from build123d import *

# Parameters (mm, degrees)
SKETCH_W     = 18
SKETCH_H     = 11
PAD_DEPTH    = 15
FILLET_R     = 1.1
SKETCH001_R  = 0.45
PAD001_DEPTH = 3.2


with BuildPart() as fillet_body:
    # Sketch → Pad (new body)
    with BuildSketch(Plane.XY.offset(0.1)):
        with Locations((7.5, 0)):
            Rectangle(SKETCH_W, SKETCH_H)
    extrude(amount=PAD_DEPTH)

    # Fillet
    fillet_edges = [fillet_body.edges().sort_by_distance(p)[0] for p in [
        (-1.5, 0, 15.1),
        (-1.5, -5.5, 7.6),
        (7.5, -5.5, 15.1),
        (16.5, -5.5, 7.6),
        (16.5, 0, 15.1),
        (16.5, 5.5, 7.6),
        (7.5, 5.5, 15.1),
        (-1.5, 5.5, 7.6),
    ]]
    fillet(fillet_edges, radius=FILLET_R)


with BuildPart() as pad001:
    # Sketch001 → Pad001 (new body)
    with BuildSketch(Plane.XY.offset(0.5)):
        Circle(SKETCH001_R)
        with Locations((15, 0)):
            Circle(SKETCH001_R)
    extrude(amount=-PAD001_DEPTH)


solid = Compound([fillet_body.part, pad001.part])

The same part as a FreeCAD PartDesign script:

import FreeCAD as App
import Part
import Sketcher

V = App.Vector
Q = App.Units.Quantity


def edges_at(feature, points):
    """Names of the edges that pass closest to the given points."""
    edges = feature.Shape.Edges
    near = lambda p: min(range(len(edges)), key=lambda i: edges[i].distToShape(Part.Vertex(*p))[0])
    return sorted({f"Edge{near(p) + 1}" for p in points})

doc = App.newDocument("Part")
params = doc.addObject("Spreadsheet::Sheet", "Params")
for row, (alias, value) in enumerate([
    ("sketch1_width", "18 mm"),
    ("sketch1_height", "11 mm"),
    ("pad1_length", "15 mm"),
    ("fillet_radius", "1.1 mm"),
    ("sketch2_diameter", "0.9 mm"),
    ("pad2_length", "3.2 mm"),
], start=1):
    params.set(f"A{row}", alias)
    params.set(f"B{row}", "=" + value)
    params.setAlias(f"B{row}", alias)

body = doc.addObject("PartDesign::Body", "Body")

sketch1 = doc.addObject("Sketcher::SketchObject", "Sketch")
body.addObject(sketch1)
sketch1.AttachmentSupport = (doc.XY_Plane, [""])
sketch1.MapMode = "FlatFace"
sketch1.AttachmentOffset = App.Placement(V(0, 0, 0.1), App.Rotation())
sketch1.addGeometry([
    Part.LineSegment(V(-2, 6, 0), V(-2, -6, 0)),
    Part.LineSegment(V(-2, -6, 0), V(16, -6, 0)),
    Part.LineSegment(V(16, -6, 0), V(16, 6, 0)),
    Part.LineSegment(V(16, 6, 0), V(-2, 6, 0)),
], False)
sketch1.addConstraint([
    Sketcher.Constraint("Coincident", 0, 2, 1, 1),
    Sketcher.Constraint("Coincident", 1, 2, 2, 1),
    Sketcher.Constraint("Coincident", 2, 2, 3, 1),
    Sketcher.Constraint("Coincident", 3, 2, 0, 1),
    Sketcher.Constraint("Vertical", 0),
    Sketcher.Constraint("Horizontal", 1),
    Sketcher.Constraint("Vertical", 2),
    Sketcher.Constraint("Horizontal", 3),
    Sketcher.Constraint("DistanceX", 1, 1, 1, 2, Q("18 mm")),
    Sketcher.Constraint("DistanceY", 0, 2, 0, 1, Q("11 mm")),
    Sketcher.Constraint("DistanceX", 0, 2, -1, 1, Q("1.5 mm")),
    Sketcher.Constraint("DistanceY", 0, 2, -1, 1, Q("5.5 mm")),
])
sketch1.setExpression("Constraints[8]", "Params.sketch1_width")
sketch1.setExpression("Constraints[9]", "Params.sketch1_height")
pad1 = doc.addObject("PartDesign::Pad", "Pad")
body.addObject(pad1)
pad1.Profile = sketch1
pad1.setExpression("Length", "Params.pad1_length")
doc.recompute()

fillet = doc.addObject("PartDesign::Fillet", "Fillet")
body.addObject(fillet)
fillet.Base = (pad1, edges_at(pad1, [
    (-1.5, 0, 15.1),
    (-1.5, -5.5, 7.6),
    (7.5, -5.5, 15.1),
    (16.5, -5.5, 7.6),
    (16.5, 0, 15.1),
    (16.5, 5.5, 7.6),
    (7.5, 5.5, 15.1),
    (-1.5, 5.5, 7.6),
]))
fillet.setExpression("Radius", "Params.fillet_radius")
body2 = doc.addObject("PartDesign::Body", "Body001")
body2.AllowCompound = True

sketch2 = doc.addObject("Sketcher::SketchObject", "Sketch001")
body2.addObject(sketch2)
sketch2.AttachmentSupport = (doc.getObject("XY_Plane001"), [""])
sketch2.MapMode = "FlatFace"
sketch2.AttachmentOffset = App.Placement(V(0, 0, 0.5), App.Rotation())
sketch2.addGeometry([
    Part.Circle(V(0, 0, 0), V(0, 0, 1), 0.45),
    Part.Circle(V(15, 0, 0), V(0, 0, 1), 0.45),
], False)
sketch2.addConstraint([
    Sketcher.Constraint("Coincident", 0, 3, -1, 1),
    Sketcher.Constraint("Equal", 0, 1),
    Sketcher.Constraint("PointOnObject", 1, 3, -1),
    Sketcher.Constraint("Diameter", 0, Q("0.9 mm")),
    Sketcher.Constraint("DistanceX", -1, 1, 1, 3, Q("15 mm")),
])
sketch2.setExpression("Constraints[3]", "Params.sketch2_diameter")
pad2 = doc.addObject("PartDesign::Pad", "Pad001")
body2.addObject(pad2)
pad2.Profile = sketch2
pad2.setExpression("Length", "Params.pad2_length")
pad2.Reversed = True

doc.recompute()
